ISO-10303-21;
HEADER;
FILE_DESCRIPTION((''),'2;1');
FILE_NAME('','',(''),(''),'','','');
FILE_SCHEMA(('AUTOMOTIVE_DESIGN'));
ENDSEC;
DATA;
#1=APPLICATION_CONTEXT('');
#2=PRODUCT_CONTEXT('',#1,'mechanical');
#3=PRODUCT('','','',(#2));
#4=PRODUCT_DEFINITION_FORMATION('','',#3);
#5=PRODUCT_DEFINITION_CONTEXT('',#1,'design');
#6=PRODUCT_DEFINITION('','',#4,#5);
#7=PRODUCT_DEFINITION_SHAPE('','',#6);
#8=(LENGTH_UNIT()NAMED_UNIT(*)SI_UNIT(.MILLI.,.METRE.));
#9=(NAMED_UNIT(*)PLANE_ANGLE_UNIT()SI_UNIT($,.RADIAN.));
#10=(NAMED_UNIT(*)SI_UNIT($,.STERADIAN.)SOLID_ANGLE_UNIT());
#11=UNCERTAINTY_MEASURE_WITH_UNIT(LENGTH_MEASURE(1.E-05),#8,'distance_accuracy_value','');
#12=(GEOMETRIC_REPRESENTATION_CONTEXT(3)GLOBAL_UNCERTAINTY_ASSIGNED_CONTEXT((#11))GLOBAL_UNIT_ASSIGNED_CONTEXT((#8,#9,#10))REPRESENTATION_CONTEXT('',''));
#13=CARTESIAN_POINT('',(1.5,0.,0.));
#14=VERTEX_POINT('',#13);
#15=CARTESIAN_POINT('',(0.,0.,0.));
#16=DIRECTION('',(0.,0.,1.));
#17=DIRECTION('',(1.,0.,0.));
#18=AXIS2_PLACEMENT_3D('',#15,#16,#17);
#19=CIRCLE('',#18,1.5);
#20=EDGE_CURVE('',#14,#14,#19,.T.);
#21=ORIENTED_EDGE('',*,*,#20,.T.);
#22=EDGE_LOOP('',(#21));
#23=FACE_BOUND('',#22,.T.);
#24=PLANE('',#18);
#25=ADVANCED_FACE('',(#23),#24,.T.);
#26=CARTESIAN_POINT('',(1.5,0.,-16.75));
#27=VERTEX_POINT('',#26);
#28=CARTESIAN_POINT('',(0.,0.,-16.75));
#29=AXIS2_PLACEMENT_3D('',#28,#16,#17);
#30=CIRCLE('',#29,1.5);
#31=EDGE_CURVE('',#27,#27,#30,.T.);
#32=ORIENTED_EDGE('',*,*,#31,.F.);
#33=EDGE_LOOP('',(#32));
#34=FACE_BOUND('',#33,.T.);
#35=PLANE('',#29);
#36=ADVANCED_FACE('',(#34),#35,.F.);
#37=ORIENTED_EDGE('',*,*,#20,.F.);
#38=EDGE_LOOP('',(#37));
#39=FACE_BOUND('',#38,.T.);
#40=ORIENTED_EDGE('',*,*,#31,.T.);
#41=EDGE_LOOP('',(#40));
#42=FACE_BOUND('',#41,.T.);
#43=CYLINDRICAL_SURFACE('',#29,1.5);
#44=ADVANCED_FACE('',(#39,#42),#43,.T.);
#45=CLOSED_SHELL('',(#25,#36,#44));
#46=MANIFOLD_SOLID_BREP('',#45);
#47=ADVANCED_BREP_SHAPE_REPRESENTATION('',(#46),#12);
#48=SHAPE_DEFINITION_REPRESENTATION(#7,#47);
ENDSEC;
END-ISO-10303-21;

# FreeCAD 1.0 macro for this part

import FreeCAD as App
import Part
import Sketcher

doc = App.newDocument("Part")
body = doc.addObject("PartDesign::Body", "Body")

sketch1 = doc.addObject("Sketcher::SketchObject", "Sketch")
body.addObject(sketch1)
sketch1.AttachmentSupport = (doc.XY_Plane, [""])
sketch1.MapMode = "FlatFace"
sketch1.addGeometry(Part.Circle(App.Vector(0, 0, 0), App.Vector(0, 0, 1), 1.5), False)
sketch1.addConstraint([
    Sketcher.Constraint("Coincident", 0, 3, -1, 1),
    Sketcher.Constraint("Diameter", 0, 3.0),
])
pad1 = doc.addObject("PartDesign::Pad", "Pad")
body.addObject(pad1)
pad1.Profile = sketch1
pad1.Length = 16.75
pad1.Reversed = True

doc.recompute()
